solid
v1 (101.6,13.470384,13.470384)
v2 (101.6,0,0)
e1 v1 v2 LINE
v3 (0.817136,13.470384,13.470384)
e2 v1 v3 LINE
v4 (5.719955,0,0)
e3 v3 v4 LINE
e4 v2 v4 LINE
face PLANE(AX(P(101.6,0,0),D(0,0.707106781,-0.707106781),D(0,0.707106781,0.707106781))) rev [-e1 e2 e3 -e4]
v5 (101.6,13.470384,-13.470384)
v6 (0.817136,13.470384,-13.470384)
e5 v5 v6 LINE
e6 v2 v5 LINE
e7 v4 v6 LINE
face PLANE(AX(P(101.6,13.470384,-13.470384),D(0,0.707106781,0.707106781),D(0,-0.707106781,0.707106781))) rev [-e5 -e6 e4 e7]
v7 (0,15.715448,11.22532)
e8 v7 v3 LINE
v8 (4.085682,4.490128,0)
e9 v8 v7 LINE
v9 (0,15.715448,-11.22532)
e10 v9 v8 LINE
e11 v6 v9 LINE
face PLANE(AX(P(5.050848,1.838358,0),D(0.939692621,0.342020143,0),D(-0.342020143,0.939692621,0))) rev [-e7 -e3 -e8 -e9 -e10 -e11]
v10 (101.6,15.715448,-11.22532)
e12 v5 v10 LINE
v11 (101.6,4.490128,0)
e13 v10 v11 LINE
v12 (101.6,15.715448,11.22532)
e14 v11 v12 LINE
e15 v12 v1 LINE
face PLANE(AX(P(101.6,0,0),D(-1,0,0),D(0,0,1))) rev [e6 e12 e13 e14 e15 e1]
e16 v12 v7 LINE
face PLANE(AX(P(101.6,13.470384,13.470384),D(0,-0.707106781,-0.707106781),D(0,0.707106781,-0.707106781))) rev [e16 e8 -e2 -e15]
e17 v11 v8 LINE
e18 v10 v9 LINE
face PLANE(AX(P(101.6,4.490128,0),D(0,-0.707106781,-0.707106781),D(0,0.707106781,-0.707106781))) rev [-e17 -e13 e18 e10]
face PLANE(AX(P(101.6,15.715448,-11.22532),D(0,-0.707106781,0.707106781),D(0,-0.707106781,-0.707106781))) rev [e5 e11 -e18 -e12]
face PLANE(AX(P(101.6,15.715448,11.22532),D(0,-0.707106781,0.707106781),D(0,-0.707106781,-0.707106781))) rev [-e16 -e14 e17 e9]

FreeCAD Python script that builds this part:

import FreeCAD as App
import Part
import Sketcher
Q = App.Units.Quantity


def add_polygon(sketch, points):
    """Adds a closed chain of lines whose ends are joined by coincident constraints."""
    first, n = sketch.GeometryCount, len(points)
    for a, b in zip(points, points[1:] + points[:1]):
        sketch.addGeometry(Part.LineSegment(App.Vector(*a, 0), App.Vector(*b, 0)), False)
    for i in range(n):
        sketch.addConstraint(Sketcher.Constraint("Coincident", first + i, 2, first + (i + 1) % n, 1))

doc = App.newDocument("Part")
body = doc.addObject("PartDesign::Body", "Body")

sketch1 = doc.addObject("Sketcher::SketchObject", "Sketch")
body.addObject(sketch1)
sketch1.AttachmentSupport = (doc.YZ_Plane, [""])
sketch1.MapMode = "FlatFace"
add_polygon(sketch1, [(13.5, 13.5), (0, 0), (13.5, -13.5), (15.7, -11.2), (4.5, 0), (15.7, 11.2)])
sketch1.addConstraint([
    Sketcher.Constraint("Coincident", 0, 2, -1, 1),
    Sketcher.Constraint("Symmetric", 2, 2, 4, 2, -1),
    Sketcher.Constraint("Symmetric", 1, 2, 5, 2, -1),
    Sketcher.Constraint("PointOnObject", 3, 2, -1),
    Sketcher.Constraint("Perpendicular", 0, 1),
    Sketcher.Constraint("Perpendicular", 1, 2),
    Sketcher.Constraint("Perpendicular", 2, 3),
    Sketcher.Constraint("Distance", 0, Q("0.75 in")),
    Sketcher.Constraint("Distance", 2, Q("0.125 in")),
])
pad1 = doc.addObject("PartDesign::Pad", "Pad")
body.addObject(pad1)
pad1.Profile = sketch1
pad1.Length = Q("4 in")

sketch2 = doc.addObject("Sketcher::SketchObject", "Sketch001")
body.addObject(sketch2)
sketch2.Placement = App.Placement(App.Vector(5.050848, 1.838358, 0), App.Rotation(App.Vector(0, 0, -1), App.Vector(0.342020143, -0.939692621, 0), App.Vector(-0.939692621, -0.342020143, 0), "ZXY"))
add_polygon(sketch2, [(-13, 2), (-13, -15), (13, -15), (13, 2)])
sketch2.addConstraint([
    Sketcher.Constraint("Vertical", 0),
    Sketcher.Constraint("Horizontal", 1),
    Sketcher.Constraint("Vertical", 2),
    Sketcher.Constraint("Horizontal", 3),
    Sketcher.Constraint("DistanceX", 1, 1, 1, 2, 26.940768),
    Sketcher.Constraint("DistanceY", 0, 2, 0, 1, 16.724031),
    Sketcher.Constraint("DistanceY", 0, 2, -1, 1, 14.767691),
    Sketcher.Constraint("DistanceX", 0, 2, -1, 1, 13.470384),
])
pocket1 = doc.addObject("PartDesign::Pocket", "Pocket")
body.addObject(pocket1)
pocket1.Profile = sketch2
pocket1.Type = "ThroughAll"
pocket1.Reversed = True

doc.recompute()
